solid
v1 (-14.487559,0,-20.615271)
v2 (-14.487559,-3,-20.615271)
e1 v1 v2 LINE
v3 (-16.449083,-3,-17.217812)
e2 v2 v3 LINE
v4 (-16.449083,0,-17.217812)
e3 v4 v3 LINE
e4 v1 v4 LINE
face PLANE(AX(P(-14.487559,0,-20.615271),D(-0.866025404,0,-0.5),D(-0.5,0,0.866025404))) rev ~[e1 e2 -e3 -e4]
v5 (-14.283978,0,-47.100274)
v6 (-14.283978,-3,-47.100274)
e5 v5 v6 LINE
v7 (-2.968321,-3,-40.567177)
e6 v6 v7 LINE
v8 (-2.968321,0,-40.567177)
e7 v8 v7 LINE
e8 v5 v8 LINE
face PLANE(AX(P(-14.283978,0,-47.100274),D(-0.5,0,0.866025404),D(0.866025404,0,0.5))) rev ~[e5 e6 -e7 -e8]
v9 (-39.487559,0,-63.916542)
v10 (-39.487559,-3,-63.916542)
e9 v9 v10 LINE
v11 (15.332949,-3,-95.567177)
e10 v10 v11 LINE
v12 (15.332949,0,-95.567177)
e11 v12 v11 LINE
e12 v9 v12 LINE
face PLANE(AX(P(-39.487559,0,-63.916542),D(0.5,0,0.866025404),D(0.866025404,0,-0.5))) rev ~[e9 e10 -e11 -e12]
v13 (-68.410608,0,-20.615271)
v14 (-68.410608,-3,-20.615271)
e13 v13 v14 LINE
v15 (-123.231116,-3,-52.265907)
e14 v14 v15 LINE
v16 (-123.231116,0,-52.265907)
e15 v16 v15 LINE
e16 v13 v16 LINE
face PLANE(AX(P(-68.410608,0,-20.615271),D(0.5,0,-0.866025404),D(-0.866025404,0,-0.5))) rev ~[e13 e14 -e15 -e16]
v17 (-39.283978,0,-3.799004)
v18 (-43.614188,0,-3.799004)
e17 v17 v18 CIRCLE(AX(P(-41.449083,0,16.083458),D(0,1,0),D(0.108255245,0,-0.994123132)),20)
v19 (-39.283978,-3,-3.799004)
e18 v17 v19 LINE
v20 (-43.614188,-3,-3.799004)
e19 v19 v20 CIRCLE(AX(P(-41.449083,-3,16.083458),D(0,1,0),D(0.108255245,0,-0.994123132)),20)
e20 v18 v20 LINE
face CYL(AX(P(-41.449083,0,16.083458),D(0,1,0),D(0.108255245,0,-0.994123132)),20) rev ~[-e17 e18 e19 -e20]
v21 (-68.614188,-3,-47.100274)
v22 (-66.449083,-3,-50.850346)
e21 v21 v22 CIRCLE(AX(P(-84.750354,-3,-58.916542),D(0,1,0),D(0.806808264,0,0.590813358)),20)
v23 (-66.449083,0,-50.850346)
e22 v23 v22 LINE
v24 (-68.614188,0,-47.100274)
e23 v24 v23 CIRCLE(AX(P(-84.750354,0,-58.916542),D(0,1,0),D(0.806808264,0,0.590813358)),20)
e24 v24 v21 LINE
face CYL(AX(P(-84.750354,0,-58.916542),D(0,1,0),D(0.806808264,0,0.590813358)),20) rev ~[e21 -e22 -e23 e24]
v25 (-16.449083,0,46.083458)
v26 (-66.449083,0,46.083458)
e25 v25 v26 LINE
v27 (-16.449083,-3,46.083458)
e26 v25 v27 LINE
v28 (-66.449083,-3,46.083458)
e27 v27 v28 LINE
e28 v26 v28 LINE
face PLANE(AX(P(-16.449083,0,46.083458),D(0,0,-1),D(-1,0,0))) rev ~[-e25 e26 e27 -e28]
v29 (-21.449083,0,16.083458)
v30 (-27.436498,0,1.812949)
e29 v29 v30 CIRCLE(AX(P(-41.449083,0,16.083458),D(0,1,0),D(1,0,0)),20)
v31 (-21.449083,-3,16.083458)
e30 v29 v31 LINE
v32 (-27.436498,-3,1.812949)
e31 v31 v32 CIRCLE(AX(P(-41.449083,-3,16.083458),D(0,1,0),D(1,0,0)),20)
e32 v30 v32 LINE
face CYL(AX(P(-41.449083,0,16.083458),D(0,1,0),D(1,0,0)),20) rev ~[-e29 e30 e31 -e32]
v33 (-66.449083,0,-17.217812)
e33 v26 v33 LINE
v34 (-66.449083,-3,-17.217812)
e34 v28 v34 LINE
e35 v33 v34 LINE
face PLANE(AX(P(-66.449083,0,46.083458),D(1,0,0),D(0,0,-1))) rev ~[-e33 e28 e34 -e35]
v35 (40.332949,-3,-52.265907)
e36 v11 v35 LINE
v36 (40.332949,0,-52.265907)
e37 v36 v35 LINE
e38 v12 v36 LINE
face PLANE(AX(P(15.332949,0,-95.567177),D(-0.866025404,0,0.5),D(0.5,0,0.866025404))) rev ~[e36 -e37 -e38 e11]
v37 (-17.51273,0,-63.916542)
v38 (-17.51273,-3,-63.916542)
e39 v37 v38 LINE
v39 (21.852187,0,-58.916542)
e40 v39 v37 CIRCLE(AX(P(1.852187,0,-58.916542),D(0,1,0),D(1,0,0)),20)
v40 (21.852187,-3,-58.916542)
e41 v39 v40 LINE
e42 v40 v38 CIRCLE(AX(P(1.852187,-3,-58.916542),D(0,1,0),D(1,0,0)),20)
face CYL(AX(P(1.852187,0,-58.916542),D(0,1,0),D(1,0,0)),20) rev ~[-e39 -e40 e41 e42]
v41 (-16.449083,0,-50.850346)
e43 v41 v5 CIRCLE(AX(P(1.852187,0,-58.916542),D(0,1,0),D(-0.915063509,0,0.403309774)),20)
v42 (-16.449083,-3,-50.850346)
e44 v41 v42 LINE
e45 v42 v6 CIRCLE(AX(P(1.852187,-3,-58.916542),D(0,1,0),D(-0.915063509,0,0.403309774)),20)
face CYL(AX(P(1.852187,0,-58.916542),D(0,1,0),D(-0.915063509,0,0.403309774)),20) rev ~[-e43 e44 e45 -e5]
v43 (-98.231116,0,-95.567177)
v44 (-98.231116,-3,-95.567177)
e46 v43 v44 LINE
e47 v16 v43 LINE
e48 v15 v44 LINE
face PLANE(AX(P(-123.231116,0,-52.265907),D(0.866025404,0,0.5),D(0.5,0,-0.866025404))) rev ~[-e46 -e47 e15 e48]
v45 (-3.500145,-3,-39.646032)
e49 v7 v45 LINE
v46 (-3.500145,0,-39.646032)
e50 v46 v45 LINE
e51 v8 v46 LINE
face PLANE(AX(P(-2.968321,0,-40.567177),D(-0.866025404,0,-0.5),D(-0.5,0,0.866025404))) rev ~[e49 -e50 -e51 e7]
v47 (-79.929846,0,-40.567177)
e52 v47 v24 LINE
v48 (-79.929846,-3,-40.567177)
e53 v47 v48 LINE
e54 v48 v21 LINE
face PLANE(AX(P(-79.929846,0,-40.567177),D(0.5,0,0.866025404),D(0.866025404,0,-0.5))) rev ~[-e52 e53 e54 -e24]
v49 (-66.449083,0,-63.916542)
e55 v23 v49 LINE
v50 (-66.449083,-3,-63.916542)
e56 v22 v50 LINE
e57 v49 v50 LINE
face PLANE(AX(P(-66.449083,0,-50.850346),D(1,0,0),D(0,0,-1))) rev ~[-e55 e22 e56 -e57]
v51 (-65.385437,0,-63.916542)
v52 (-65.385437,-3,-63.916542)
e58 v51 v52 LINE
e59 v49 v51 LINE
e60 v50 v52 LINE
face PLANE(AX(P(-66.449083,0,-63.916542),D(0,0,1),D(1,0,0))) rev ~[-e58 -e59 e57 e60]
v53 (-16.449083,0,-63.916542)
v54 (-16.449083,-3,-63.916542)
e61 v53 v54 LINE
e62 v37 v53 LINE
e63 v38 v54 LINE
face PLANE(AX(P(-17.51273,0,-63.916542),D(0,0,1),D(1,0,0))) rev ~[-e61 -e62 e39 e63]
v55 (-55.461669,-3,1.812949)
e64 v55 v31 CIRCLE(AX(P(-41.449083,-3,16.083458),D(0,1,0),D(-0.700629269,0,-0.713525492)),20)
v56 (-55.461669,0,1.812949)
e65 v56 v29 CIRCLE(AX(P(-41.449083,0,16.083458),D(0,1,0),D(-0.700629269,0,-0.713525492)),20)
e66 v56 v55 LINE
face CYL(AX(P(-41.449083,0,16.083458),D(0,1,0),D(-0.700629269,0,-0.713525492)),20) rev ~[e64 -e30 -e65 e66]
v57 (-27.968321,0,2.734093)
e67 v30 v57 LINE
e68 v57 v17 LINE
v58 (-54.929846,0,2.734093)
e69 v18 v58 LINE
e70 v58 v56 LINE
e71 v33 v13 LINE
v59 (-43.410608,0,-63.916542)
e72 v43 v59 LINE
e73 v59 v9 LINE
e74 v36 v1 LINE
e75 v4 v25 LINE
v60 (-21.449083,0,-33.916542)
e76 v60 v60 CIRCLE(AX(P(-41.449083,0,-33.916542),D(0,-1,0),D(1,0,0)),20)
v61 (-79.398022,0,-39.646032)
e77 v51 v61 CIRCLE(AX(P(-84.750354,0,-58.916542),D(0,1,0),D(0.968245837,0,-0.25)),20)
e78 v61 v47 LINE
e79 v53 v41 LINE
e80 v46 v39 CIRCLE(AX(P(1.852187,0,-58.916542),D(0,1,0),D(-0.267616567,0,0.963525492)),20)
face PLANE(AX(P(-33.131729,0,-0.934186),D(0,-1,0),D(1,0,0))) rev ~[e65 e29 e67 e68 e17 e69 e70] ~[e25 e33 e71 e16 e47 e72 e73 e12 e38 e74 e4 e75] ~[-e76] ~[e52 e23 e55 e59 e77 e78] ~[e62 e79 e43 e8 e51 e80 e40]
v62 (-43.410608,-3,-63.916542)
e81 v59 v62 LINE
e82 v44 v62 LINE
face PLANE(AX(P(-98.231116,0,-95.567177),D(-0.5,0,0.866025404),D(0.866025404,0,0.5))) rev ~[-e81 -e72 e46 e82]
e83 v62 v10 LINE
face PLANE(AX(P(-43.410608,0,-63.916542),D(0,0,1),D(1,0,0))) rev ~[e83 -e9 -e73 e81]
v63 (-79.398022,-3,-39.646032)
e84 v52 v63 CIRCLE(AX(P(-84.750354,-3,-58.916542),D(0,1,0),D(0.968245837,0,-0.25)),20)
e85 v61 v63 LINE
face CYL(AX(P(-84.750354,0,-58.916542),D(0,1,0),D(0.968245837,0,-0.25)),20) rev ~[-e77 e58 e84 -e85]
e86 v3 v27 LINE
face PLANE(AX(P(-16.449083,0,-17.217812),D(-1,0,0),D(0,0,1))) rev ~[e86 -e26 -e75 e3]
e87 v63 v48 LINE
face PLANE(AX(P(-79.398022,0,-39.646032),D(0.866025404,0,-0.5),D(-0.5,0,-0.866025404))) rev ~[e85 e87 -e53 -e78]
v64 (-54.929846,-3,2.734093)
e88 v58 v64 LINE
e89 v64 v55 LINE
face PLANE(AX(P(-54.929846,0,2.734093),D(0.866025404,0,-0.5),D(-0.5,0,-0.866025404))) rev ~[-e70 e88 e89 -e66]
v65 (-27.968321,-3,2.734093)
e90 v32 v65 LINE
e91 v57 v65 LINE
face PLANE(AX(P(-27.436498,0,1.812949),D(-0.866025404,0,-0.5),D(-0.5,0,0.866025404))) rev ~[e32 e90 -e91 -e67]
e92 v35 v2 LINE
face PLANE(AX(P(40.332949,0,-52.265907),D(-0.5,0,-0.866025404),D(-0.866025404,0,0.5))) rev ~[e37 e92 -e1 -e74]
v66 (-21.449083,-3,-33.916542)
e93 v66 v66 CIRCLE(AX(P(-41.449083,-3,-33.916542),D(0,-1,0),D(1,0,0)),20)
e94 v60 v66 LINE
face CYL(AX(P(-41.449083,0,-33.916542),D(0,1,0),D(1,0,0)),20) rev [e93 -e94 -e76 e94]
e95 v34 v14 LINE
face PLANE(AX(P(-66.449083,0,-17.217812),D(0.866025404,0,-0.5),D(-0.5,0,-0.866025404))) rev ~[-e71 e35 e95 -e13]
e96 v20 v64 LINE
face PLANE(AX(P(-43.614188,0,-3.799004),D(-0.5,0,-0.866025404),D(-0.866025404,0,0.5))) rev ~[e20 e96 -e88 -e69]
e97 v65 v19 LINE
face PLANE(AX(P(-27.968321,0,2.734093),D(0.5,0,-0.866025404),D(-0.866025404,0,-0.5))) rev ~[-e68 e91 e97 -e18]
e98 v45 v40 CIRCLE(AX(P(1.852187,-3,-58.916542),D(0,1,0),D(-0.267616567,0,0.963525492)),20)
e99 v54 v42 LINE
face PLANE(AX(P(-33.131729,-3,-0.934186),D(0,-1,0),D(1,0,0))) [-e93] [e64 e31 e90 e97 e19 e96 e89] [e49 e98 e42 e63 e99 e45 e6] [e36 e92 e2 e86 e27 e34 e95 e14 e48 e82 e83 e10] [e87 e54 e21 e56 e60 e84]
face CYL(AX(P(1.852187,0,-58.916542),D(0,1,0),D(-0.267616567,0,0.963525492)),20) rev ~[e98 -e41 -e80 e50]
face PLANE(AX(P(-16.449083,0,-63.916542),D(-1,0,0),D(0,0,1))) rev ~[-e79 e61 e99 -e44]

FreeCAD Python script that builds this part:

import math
import FreeCAD as App
import Part
import Sketcher

V = App.Vector
Q = App.Units.Quantity


def add_polygon(sketch, points):
    """Adds a closed chain of lines whose ends are joined by coincident constraints."""
    first, n = sketch.GeometryCount, len(points)
    for a, b in zip(points, points[1:] + points[:1]):
        sketch.addGeometry(Part.LineSegment(App.Vector(*a, 0), App.Vector(*b, 0)), False)
    for i in range(n):
        sketch.addConstraint(Sketcher.Constraint("Coincident", first + i, 2, first + (i + 1) % n, 1))

doc = App.newDocument("Part")
body = doc.addObject("PartDesign::Body", "Body")

sketch1 = body.newObject("Sketcher::SketchObject", "Sketch")
sketch1.AttachmentSupport = (doc.getObject("XZ_Plane"), [""])
sketch1.MapMode = "FlatFace"
add_polygon(sketch1, [(-66.449083, 46.083458), (-66.449083, -17.217812), (-68.410608, -20.615271), (-123.231116, -52.265907), (-98.231116, -95.567177), (-43.410608, -63.916542), (-39.487559, -63.916542), (15.332949, -95.567177), (40.332949, -52.265907), (-14.487559, -20.615271), (-16.449083, -17.217812), (-16.449083, 46.083458)])
sketch1.addGeometry(Part.LineSegment(V(-66.449083, -50.850346, 0), V(-66.449083, -63.916542, 0)), False)
sketch1.addGeometry(Part.LineSegment(V(-66.449083, -63.916542, 0), V(-65.385437, -63.916542, 0)), False)
sketch1.addGeometry(Part.ArcOfCircle(Part.Circle(V(-84.750354, -58.916542, 0), V(0, 0, 1), 20), math.radians(74.477512), math.radians(345.522488)), False)
sketch1.addGeometry(Part.LineSegment(V(-79.398022, -39.646032, 0), V(-79.929846, -40.567177, 0)), False)
sketch1.addGeometry(Part.LineSegment(V(-79.929846, -40.567177, 0), V(-68.614188, -47.100274, 0)), False)
sketch1.addGeometry(Part.ArcOfCircle(Part.Circle(V(-84.750354, -58.916542, 0), V(0, 0, 1), 20), math.radians(23.785252), math.radians(36.214748)), False)
sketch1.addGeometry(Part.Circle(V(-41.449083, -33.916542, 0), V(0, 0, 1), 20), False)
sketch1.addGeometry(Part.LineSegment(V(-17.51273, -63.916542, 0), V(-16.449083, -63.916542, 0)), False)
sketch1.addGeometry(Part.LineSegment(V(-16.449083, -63.916542, 0), V(-16.449083, -50.850346, 0)), False)
sketch1.addGeometry(Part.ArcOfCircle(Part.Circle(V(1.852187, -58.916542, 0), V(0, 0, 1), 20), math.radians(143.785252), math.radians(156.214748)), False)
sketch1.addGeometry(Part.LineSegment(V(-14.283978, -47.100274, 0), V(-2.968321, -40.567177, 0)), False)
sketch1.addGeometry(Part.LineSegment(V(-2.968321, -40.567177, 0), V(-3.500145, -39.646032, 0)), False)
sketch1.addGeometry(Part.ArcOfCircle(Part.Circle(V(1.852187, -58.916542, 0), V(0, 0, 1), 20), math.radians(0), math.radians(105.522488)), False)
sketch1.addGeometry(Part.ArcOfCircle(Part.Circle(V(1.852187, -58.916542, 0), V(0, 0, 1), 20), math.radians(-165.522488), math.radians(0)), False)
sketch1.addGeometry(Part.LineSegment(V(-27.968321, 2.734093, 0), V(-39.283978, -3.799004, 0)), False)
sketch1.addGeometry(Part.ArcOfCircle(Part.Circle(V(-41.449083, 16.083458, 0), V(0, 0, 1), 20), math.radians(-96.214748), math.radians(-83.785252)), False)
sketch1.addGeometry(Part.LineSegment(V(-43.614188, -3.799004, 0), V(-54.929846, 2.734093, 0)), False)
sketch1.addGeometry(Part.LineSegment(V(-54.929846, 2.734093, 0), V(-55.461669, 1.812949, 0)), False)
sketch1.addGeometry(Part.ArcOfCircle(Part.Circle(V(-41.449083, 16.083458, 0), V(0, 0, 1), 20), math.radians(0), math.radians(225.522488)), False)
sketch1.addGeometry(Part.ArcOfCircle(Part.Circle(V(-41.449083, 16.083458, 0), V(0, 0, 1), 20), math.radians(-45.522488), math.radians(0)), False)
sketch1.addGeometry(Part.LineSegment(V(-27.436498, 1.812949, 0), V(-27.968321, 2.734093, 0)), False)
sketch1.addConstraint([
    Sketcher.Constraint("Coincident", 12, 2, 13, 1),
    Sketcher.Constraint("Coincident", 13, 2, 14, 2),
    Sketcher.Constraint("Coincident", 14, 1, 15, 1),
    Sketcher.Constraint("Coincident", 15, 2, 16, 1),
    Sketcher.Constraint("Coincident", 16, 2, 17, 2),
    Sketcher.Constraint("Coincident", 17, 1, 12, 1),
    Sketcher.Constraint("Coincident", 19, 2, 20, 1),
    Sketcher.Constraint("Coincident", 20, 2, 21, 2),
    Sketcher.Constraint("Coincident", 21, 1, 22, 1),
    Sketcher.Constraint("Coincident", 22, 2, 23, 1),
    Sketcher.Constraint("Coincident", 23, 2, 24, 2),
    Sketcher.Constraint("Tangent", 24, 1, 25, 2),
    Sketcher.Constraint("Coincident", 25, 1, 19, 1),
    Sketcher.Constraint("Coincident", 26, 2, 27, 2),
    Sketcher.Constraint("Coincident", 27, 1, 28, 1),
    Sketcher.Constraint("Coincident", 28, 2, 29, 1),
    Sketcher.Constraint("Coincident", 29, 2, 30, 2),
    Sketcher.Constraint("Tangent", 30, 1, 31, 2),
    Sketcher.Constraint("Coincident", 31, 1, 32, 1),
    Sketcher.Constraint("Coincident", 32, 2, 26, 1),
    Sketcher.Constraint("Vertical", 0),
    Sketcher.Constraint("Horizontal", 5),
    Sketcher.Constraint("Vertical", 10),
    Sketcher.Constraint("Horizontal", 11),
    Sketcher.Constraint("Vertical", 12),
    Sketcher.Constraint("Horizontal", 13),
    Sketcher.Constraint("Horizontal", 19),
    Sketcher.Constraint("Vertical", 20),
    Sketcher.Constraint("Coincident", 17, 3, 14, 3),
    Sketcher.Constraint("Coincident", 24, 3, 21, 3),
    Sketcher.Constraint("Coincident", 30, 3, 27, 3),
    Sketcher.Constraint("Equal", 14, 17),
    Sketcher.Constraint("Equal", 17, 18),
    Sketcher.Constraint("Equal", 18, 21),
    Sketcher.Constraint("Equal", 21, 24),
    Sketcher.Constraint("Equal", 24, 25),
    Sketcher.Constraint("Equal", 25, 27),
    Sketcher.Constraint("Equal", 27, 30),
    Sketcher.Constraint("Equal", 30, 31),
    Sketcher.Constraint("Perpendicular", 2, 3),
    Sketcher.Constraint("Perpendicular", 3, 4),
    Sketcher.Constraint("Perpendicular", 1, 6),
    Sketcher.Constraint("Perpendicular", 6, 7),
    Sketcher.Constraint("Perpendicular", 7, 8),
    Sketcher.Constraint("Perpendicular", 4, 9),
    Sketcher.Constraint("Perpendicular", 8, 15),
    Sketcher.Constraint("Perpendicular", 15, 16),
    Sketcher.Constraint("Perpendicular", 9, 22),
    Sketcher.Constraint("Perpendicular", 22, 23),
    Sketcher.Constraint("Perpendicular", 23, 26),
    Sketcher.Constraint("Parallel", 16, 28),
    Sketcher.Constraint("Perpendicular", 28, 29),
    Sketcher.Constraint("Perpendicular", 26, 32),
    Sketcher.Constraint("Horizontal", 17, 3, 21, 3),
    Sketcher.Constraint("Horizontal", 3, 2, 6, 2),
    Sketcher.Constraint("Horizontal", 2, 2, 7, 2),
    Sketcher.Constraint("Horizontal", 1, 2, 8, 2),
    Sketcher.Constraint("Horizontal", 0, 2, 9, 2),
    Sketcher.Constraint("Horizontal", 5, 2, 12, 2),
    Sketcher.Constraint("Horizontal", 13, 2, 19, 2),
    Sketcher.Constraint("Horizontal", 17, 1, 20, 2),
    Sketcher.Constraint("Horizontal", 16, 2, 21, 1),
    Sketcher.Constraint("Horizontal", 15, 2, 22, 2),
    Sketcher.Constraint("Horizontal", 14, 1, 23, 2),
    Sketcher.Constraint("Horizontal", 25, 3, 24, 1),
    Sketcher.Constraint("Horizontal", 26, 2, 27, 1),
    Sketcher.Constraint("Horizontal", 31, 3, 30, 1),
    Sketcher.Constraint("Horizontal", 29, 2, 31, 1),
    Sketcher.Constraint("Vertical", 18, 3, 27, 3),
    Sketcher.Constraint("Vertical", 11, 2, 12, 2),
    Sketcher.Constraint("Vertical", 10, 2, 19, 2),
    Sketcher.Constraint("Equal", 2, 4),
    Sketcher.Constraint("Equal", 22, 26),
    Sketcher.Constraint("Equal", 23, 29),
    Sketcher.Constraint("Diameter", 18, Q("40 mm")),
    Sketcher.Constraint("DistanceX", 11, 2, 11, 1, Q("50 mm")),
    Sketcher.Constraint("Angle", 1, Q("-120 deg")),
    Sketcher.Constraint("Distance", 3, Q("50 mm")),
    Sketcher.Constraint("DistanceY", 14, 3, 18, 3, Q("25 mm")),
    Sketcher.Constraint("DistanceY", 18, 3, 27, 3, Q("50 mm")),
    Sketcher.Constraint("DistanceX", 0, 2, 18, 3, Q("25 mm")),
    Sketcher.Constraint("DistanceY", 4, 2, 18, 3, Q("30 mm")),
    Sketcher.Constraint("DistanceY", 30, 3, 10, 2, Q("30 mm")),
    Sketcher.Constraint("DistanceX", 5, 1, 5, 2, Q("3.923048 mm")),
    Sketcher.Constraint("DistanceX", 31, 1, -1, 1, Q("27.436498 mm")),
    Sketcher.Constraint("Distance", 2, Q("63.30127 mm")),
    Sketcher.Constraint("DistanceX", 13, 1, 13, 2, Q("1.063647 mm")),
    Sketcher.Constraint("DistanceY", 14, 3, -1, 1, Q("58.916542 mm")),
    Sketcher.Constraint("DistanceX", 5, 2, -1, 1, Q("39.487559 mm")),
    Sketcher.Constraint("DistanceX", 16, 2, -1, 1, Q("68.614188 mm")),
])
pad1 = body.newObject("PartDesign::Pad", "Pad")
pad1.Profile = sketch1
pad1.Length = 3

doc.recompute()
